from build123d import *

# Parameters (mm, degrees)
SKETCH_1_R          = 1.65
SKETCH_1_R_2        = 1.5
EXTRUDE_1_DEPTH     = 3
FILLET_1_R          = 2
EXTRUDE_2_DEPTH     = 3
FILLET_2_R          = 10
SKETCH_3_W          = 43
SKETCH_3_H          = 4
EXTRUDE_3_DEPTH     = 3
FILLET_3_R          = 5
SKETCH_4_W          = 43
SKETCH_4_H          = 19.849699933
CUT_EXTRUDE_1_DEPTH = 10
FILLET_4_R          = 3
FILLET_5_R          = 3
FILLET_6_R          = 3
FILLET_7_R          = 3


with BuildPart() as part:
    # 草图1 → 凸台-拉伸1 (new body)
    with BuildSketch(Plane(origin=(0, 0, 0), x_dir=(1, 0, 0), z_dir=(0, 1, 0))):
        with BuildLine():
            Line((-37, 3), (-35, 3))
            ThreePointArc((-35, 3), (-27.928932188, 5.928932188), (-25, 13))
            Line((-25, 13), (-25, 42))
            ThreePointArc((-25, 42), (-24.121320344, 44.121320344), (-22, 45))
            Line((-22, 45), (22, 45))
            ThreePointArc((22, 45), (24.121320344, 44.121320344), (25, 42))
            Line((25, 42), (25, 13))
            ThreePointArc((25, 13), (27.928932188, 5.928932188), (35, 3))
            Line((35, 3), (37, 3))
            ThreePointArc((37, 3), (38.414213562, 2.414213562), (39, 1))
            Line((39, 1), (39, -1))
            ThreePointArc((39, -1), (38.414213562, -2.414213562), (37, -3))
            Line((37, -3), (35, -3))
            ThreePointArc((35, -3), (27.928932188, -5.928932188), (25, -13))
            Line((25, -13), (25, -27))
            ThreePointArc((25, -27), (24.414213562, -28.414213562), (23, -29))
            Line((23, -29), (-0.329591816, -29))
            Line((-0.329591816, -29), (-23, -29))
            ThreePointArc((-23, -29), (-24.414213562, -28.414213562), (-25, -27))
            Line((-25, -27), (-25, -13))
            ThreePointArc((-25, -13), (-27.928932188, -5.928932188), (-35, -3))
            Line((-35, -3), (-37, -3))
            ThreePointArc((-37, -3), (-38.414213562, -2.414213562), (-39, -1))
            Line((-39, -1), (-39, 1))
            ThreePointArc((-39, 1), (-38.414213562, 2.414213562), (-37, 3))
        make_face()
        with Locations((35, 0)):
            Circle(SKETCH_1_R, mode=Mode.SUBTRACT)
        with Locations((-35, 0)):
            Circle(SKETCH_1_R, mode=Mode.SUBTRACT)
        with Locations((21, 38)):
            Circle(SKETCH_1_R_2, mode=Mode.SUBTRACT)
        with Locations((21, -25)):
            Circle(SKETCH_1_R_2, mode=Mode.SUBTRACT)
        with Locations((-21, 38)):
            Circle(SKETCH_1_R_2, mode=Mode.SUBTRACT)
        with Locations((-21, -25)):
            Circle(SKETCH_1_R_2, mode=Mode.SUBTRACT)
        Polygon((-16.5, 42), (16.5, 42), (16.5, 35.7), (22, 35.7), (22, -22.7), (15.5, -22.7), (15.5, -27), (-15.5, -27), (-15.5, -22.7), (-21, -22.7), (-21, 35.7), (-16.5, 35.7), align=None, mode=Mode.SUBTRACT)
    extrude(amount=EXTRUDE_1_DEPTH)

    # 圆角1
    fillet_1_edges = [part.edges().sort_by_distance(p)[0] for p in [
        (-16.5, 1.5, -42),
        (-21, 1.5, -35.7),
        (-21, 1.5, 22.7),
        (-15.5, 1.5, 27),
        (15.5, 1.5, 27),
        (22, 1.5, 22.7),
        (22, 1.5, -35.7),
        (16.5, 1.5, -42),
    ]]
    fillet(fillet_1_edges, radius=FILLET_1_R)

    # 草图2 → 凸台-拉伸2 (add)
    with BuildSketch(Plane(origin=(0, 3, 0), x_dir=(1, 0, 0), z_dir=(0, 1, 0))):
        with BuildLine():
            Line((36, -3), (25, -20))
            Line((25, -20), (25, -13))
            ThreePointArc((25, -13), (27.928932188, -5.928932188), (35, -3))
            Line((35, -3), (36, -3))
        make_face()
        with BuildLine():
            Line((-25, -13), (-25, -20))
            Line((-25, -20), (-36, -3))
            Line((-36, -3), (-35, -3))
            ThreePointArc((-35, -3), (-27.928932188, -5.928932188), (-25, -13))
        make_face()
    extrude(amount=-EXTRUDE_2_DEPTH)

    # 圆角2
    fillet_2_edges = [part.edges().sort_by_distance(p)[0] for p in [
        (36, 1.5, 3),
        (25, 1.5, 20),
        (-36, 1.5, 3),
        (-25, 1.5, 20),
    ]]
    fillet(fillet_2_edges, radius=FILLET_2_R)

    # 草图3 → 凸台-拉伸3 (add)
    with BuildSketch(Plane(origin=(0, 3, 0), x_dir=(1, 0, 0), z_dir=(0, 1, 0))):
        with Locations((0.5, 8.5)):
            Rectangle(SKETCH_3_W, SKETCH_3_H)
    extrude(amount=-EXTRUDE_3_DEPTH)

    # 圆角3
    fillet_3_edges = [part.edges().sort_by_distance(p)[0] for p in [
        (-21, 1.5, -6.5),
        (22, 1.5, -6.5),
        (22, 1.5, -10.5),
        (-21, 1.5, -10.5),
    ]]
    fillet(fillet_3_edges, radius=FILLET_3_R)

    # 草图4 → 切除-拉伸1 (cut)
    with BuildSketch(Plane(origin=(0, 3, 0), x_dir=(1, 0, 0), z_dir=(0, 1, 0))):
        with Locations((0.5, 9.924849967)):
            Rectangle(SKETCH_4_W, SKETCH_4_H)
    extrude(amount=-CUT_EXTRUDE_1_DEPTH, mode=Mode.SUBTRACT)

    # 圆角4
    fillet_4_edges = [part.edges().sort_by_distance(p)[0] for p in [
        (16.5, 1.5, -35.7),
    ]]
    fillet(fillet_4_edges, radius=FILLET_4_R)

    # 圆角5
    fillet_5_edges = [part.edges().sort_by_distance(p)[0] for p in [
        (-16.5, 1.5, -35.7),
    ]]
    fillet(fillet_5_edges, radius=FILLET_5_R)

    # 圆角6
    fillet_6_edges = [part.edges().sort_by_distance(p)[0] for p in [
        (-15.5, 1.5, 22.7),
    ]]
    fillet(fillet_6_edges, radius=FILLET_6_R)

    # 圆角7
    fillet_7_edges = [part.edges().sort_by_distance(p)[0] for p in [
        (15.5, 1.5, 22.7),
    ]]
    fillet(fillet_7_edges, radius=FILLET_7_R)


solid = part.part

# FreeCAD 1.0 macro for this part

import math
import FreeCAD as App
import Part
import Sketcher


def edges_at(feature, points):
    """Names of the edges that pass closest to the given points."""
    edges = feature.Shape.Edges
    near = lambda p: min(range(len(edges)), key=lambda i: edges[i].distToShape(Part.Vertex(*p))[0])
    return sorted({f"Edge{near(p) + 1}" for p in points})


def add_polygon(sketch, points):
    """Adds a closed chain of lines whose ends are joined by coincident constraints."""
    first, n = sketch.GeometryCount, len(points)
    for a, b in zip(points, points[1:] + points[:1]):
        sketch.addGeometry(Part.LineSegment(App.Vector(*a, 0), App.Vector(*b, 0)), False)
    for i in range(n):
        sketch.addConstraint(Sketcher.Constraint("Coincident", first + i, 2, first + (i + 1) % n, 1))

doc = App.newDocument("Part")
body = doc.addObject("PartDesign::Body", "Body")

# Sketch on XZ plane
sketch1 = body.newObject("Sketcher::SketchObject", "Sketch")
sketch1.AttachmentSupport = (doc.getObject("XZ_Plane"), [""])
sketch1.MapMode = "FlatFace"
sketch1.addGeometry(Part.LineSegment(App.Vector(-35, -3, 0), App.Vector(-37, -3, 0)), False)  # 0
sketch1.addGeometry(Part.ArcOfCircle(Part.Circle(App.Vector(-37, -1, 0), App.Vector(0, 0, 1), 2), math.radians(-180), math.radians(-90)), False)  # 1
sketch1.addGeometry(Part.LineSegment(App.Vector(-39, -1, 0), App.Vector(-39, 1, 0)), False)  # 2
sketch1.addGeometry(Part.ArcOfCircle(Part.Circle(App.Vector(-37, 1, 0), App.Vector(0, 0, 1), 2), math.radians(90), math.radians(180)), False)  # 3
sketch1.addGeometry(Part.LineSegment(App.Vector(-37, 3, 0), App.Vector(-35, 3, 0)), False)  # 4
sketch1.addGeometry(Part.ArcOfCircle(Part.Circle(App.Vector(-35, 13, 0), App.Vector(0, 0, 1), 10), math.radians(-90), math.radians(0)), False)  # 5
sketch1.addGeometry(Part.LineSegment(App.Vector(-25, 13, 0), App.Vector(-25, 27, 0)), False)  # 6
sketch1.addGeometry(Part.ArcOfCircle(Part.Circle(App.Vector(-23, 27, 0), App.Vector(0, 0, 1), 2), math.radians(90), math.radians(180)), False)  # 7
sketch1.addGeometry(Part.LineSegment(App.Vector(-23, 29, 0), App.Vector(23, 29, 0)), False)  # 8
sketch1.addGeometry(Part.ArcOfCircle(Part.Circle(App.Vector(23, 27, 0), App.Vector(0, 0, 1), 2), math.radians(0), math.radians(90)), False)  # 9
sketch1.addGeometry(Part.LineSegment(App.Vector(25, 27, 0), App.Vector(25, 13, 0)), False)  # 10
sketch1.addGeometry(Part.ArcOfCircle(Part.Circle(App.Vector(35, 13, 0), App.Vector(0, 0, 1), 10), math.radians(180), math.radians(270)), False)  # 11
sketch1.addGeometry(Part.LineSegment(App.Vector(35, 3, 0), App.Vector(37, 3, 0)), False)  # 12
sketch1.addGeometry(Part.ArcOfCircle(Part.Circle(App.Vector(37, 1, 0), App.Vector(0, 0, 1), 2), math.radians(0), math.radians(90)), False)  # 13
sketch1.addGeometry(Part.LineSegment(App.Vector(39, 1, 0), App.Vector(39, -1, 0)), False)  # 14
sketch1.addGeometry(Part.ArcOfCircle(Part.Circle(App.Vector(37, -1, 0), App.Vector(0, 0, 1), 2), math.radians(-90), math.radians(0)), False)  # 15
sketch1.addGeometry(Part.LineSegment(App.Vector(37, -3, 0), App.Vector(35, -3, 0)), False)  # 16
sketch1.addGeometry(Part.ArcOfCircle(Part.Circle(App.Vector(35, -13, 0), App.Vector(0, 0, 1), 10), math.radians(90), math.radians(180)), False)  # 17
sketch1.addGeometry(Part.LineSegment(App.Vector(25, -13, 0), App.Vector(25, -42, 0)), False)  # 18
sketch1.addGeometry(Part.ArcOfCircle(Part.Circle(App.Vector(22, -42, 0), App.Vector(0, 0, 1), 3), math.radians(-90), math.radians(0)), False)  # 19
sketch1.addGeometry(Part.LineSegment(App.Vector(22, -45, 0), App.Vector(-22, -45, 0)), False)  # 20
sketch1.addGeometry(Part.ArcOfCircle(Part.Circle(App.Vector(-22, -42, 0), App.Vector(0, 0, 1), 3), math.radians(180), math.radians(270)), False)  # 21
sketch1.addGeometry(Part.LineSegment(App.Vector(-25, -42, 0), App.Vector(-25, -13, 0)), False)  # 22
sketch1.addGeometry(Part.ArcOfCircle(Part.Circle(App.Vector(-35, -13, 0), App.Vector(0, 0, 1), 10), math.radians(0), math.radians(90)), False)  # 23
sketch1.addGeometry(Part.Circle(App.Vector(21, 25, 0), App.Vector(0, 0, 1), 1.5), False)  # 24
sketch1.addGeometry(Part.Circle(App.Vector(35, 0, 0), App.Vector(0, 0, 1), 1.6), False)  # 25
sketch1.addGeometry(Part.Circle(App.Vector(-21, 25, 0), App.Vector(0, 0, 1), 1.5), False)  # 26
sketch1.addGeometry(Part.Circle(App.Vector(-35, 0, 0), App.Vector(0, 0, 1), 1.6), False)  # 27
add_polygon(sketch1, [(-16.5, -42), (16.5, -42), (16.5, -35.7), (22, -35.7), (22, 22.7), (15.5, 22.7), (15.5, 27), (-15.5, 27), (-15.5, 22.7), (-21, 22.7), (-21, -35.7), (-16.5, -35.7)])  # lines 28-39
sketch1.addGeometry(Part.Circle(App.Vector(21, -38, 0), App.Vector(0, 0, 1), 1.5), False)  # 40
sketch1.addGeometry(Part.Circle(App.Vector(-21, -38, 0), App.Vector(0, 0, 1), 1.5), False)  # 41
sketch1.addConstraint(Sketcher.Constraint("Tangent", 0, 2, 1, 2))
sketch1.addConstraint(Sketcher.Constraint("Tangent", 1, 1, 2, 1))
sketch1.addConstraint(Sketcher.Constraint("Tangent", 2, 2, 3, 2))
sketch1.addConstraint(Sketcher.Constraint("Tangent", 3, 1, 4, 1))
sketch1.addConstraint(Sketcher.Constraint("Tangent", 4, 2, 5, 1))
sketch1.addConstraint(Sketcher.Constraint("Tangent", 5, 2, 6, 1))
sketch1.addConstraint(Sketcher.Constraint("Tangent", 6, 2, 7, 2))
sketch1.addConstraint(Sketcher.Constraint("Tangent", 7, 1, 8, 1))
sketch1.addConstraint(Sketcher.Constraint("Tangent", 8, 2, 9, 2))
sketch1.addConstraint(Sketcher.Constraint("Tangent", 9, 1, 10, 1))
sketch1.addConstraint(Sketcher.Constraint("Tangent", 10, 2, 11, 1))
sketch1.addConstraint(Sketcher.Constraint("Tangent", 11, 2, 12, 1))
sketch1.addConstraint(Sketcher.Constraint("Tangent", 12, 2, 13, 2))
sketch1.addConstraint(Sketcher.Constraint("Tangent", 13, 1, 14, 1))
sketch1.addConstraint(Sketcher.Constraint("Tangent", 14, 2, 15, 2))
sketch1.addConstraint(Sketcher.Constraint("Tangent", 15, 1, 16, 1))
sketch1.addConstraint(Sketcher.Constraint("Tangent", 16, 2, 17, 1))
sketch1.addConstraint(Sketcher.Constraint("Tangent", 17, 2, 18, 1))
sketch1.addConstraint(Sketcher.Constraint("Tangent", 18, 2, 19, 2))
sketch1.addConstraint(Sketcher.Constraint("Tangent", 19, 1, 20, 1))
sketch1.addConstraint(Sketcher.Constraint("Tangent", 20, 2, 21, 2))
sketch1.addConstraint(Sketcher.Constraint("Tangent", 21, 1, 22, 1))
sketch1.addConstraint(Sketcher.Constraint("Tangent", 22, 2, 23, 1))
sketch1.addConstraint(Sketcher.Constraint("Tangent", 23, 2, 0, 1))
sketch1.addConstraint(Sketcher.Constraint("Horizontal", 0))
sketch1.addConstraint(Sketcher.Constraint("Vertical", 2))
sketch1.addConstraint(Sketcher.Constraint("Horizontal", 4))
sketch1.addConstraint(Sketcher.Constraint("Vertical", 6))
sketch1.addConstraint(Sketcher.Constraint("Horizontal", 8))
sketch1.addConstraint(Sketcher.Constraint("Vertical", 10))
sketch1.addConstraint(Sketcher.Constraint("Horizontal", 12))
sketch1.addConstraint(Sketcher.Constraint("Vertical", 14))
sketch1.addConstraint(Sketcher.Constraint("Horizontal", 16))
sketch1.addConstraint(Sketcher.Constraint("Vertical", 18))
sketch1.addConstraint(Sketcher.Constraint("Horizontal", 20))
sketch1.addConstraint(Sketcher.Constraint("Vertical", 22))
sketch1.addConstraint(Sketcher.Constraint("Horizontal", 28))
sketch1.addConstraint(Sketcher.Constraint("Vertical", 29))
sketch1.addConstraint(Sketcher.Constraint("Horizontal", 30))
sketch1.addConstraint(Sketcher.Constraint("Vertical", 31))
sketch1.addConstraint(Sketcher.Constraint("Horizontal", 32))
sketch1.addConstraint(Sketcher.Constraint("Vertical", 33))
sketch1.addConstraint(Sketcher.Constraint("Horizontal", 34))
sketch1.addConstraint(Sketcher.Constraint("Vertical", 35))
sketch1.addConstraint(Sketcher.Constraint("Horizontal", 36))
sketch1.addConstraint(Sketcher.Constraint("Vertical", 37))
sketch1.addConstraint(Sketcher.Constraint("Horizontal", 38))
sketch1.addConstraint(Sketcher.Constraint("Vertical", 39))
sketch1.addConstraint(Sketcher.Constraint("Equal", 1, 3))
sketch1.addConstraint(Sketcher.Constraint("Equal", 3, 7))
sketch1.addConstraint(Sketcher.Constraint("Equal", 7, 9))
sketch1.addConstraint(Sketcher.Constraint("Equal", 5, 11))
sketch1.addConstraint(Sketcher.Constraint("Equal", 9, 13))
sketch1.addConstraint(Sketcher.Constraint("Equal", 13, 15))
sketch1.addConstraint(Sketcher.Constraint("Equal", 11, 17))
sketch1.addConstraint(Sketcher.Constraint("Equal", 19, 21))
sketch1.addConstraint(Sketcher.Constraint("Equal", 17, 23))
sketch1.addConstraint(Sketcher.Constraint("Equal", 24, 26))
sketch1.addConstraint(Sketcher.Constraint("Equal", 25, 27))
sketch1.addConstraint(Sketcher.Constraint("Equal", 26, 40))
sketch1.addConstraint(Sketcher.Constraint("Equal", 40, 41))
sketch1.addConstraint(Sketcher.Constraint("Symmetric", 1, 3, 13, 3, -1, 1))
sketch1.addConstraint(Sketcher.Constraint("Symmetric", 5, 3, 17, 3, -1, 1))
sketch1.addConstraint(Sketcher.Constraint("Symmetric", 25, 3, 27, 3, -1, 1))
sketch1.addConstraint(Sketcher.Constraint("Symmetric", 5, 3, 11, 3, -2))
sketch1.addConstraint(Sketcher.Constraint("Symmetric", 24, 3, 26, 3, -2))
sketch1.addConstraint(Sketcher.Constraint("Symmetric", 40, 3, 41, 3, -2))
sketch1.addConstraint(Sketcher.Constraint("Symmetric", 32, 2, 35, 2, -2))
sketch1.addConstraint(Sketcher.Constraint("Symmetric", 29, 2, 38, 2, -2))
sketch1.addConstraint(Sketcher.Constraint("PointOnObject", 25, 3, -1))
sketch1.addConstraint(Sketcher.Constraint("Horizontal", 21, 1, 28, 2))
sketch1.addConstraint(Sketcher.Constraint("Horizontal", 9, 1, 33, 2))
sketch1.addConstraint(Sketcher.Constraint("Vertical", 5, 3, 23, 3))
sketch1.addConstraint(Sketcher.Constraint("Vertical", 17, 3, 25, 3))
sketch1.addConstraint(Sketcher.Constraint("Vertical", 24, 3, 40, 3))
sketch1.addConstraint(Sketcher.Constraint("Vertical", 19, 1, 30, 2))
sketch1.addConstraint(Sketcher.Constraint("Vertical", 41, 3, 36, 2))
sketch1.addConstraint(Sketcher.Constraint("Equal", 30, 36))
sketch1.addConstraint(Sketcher.Constraint("Equal", 16, 2))
sketch1.addConstraint(Sketcher.Constraint("Diameter", 24, 3.0))
sketch1.addConstraint(Sketcher.Constraint("Radius", 1, 2.0))
sketch1.addConstraint(Sketcher.Constraint("Radius", 5, 10.0))
sketch1.addConstraint(Sketcher.Constraint("Radius", 19, 3.0))
sketch1.addConstraint(Sketcher.Constraint("Diameter", 25, 3.3))
sketch1.addConstraint(Sketcher.Constraint("DistanceX", 0, 2, 0, 1, 2.0))
sketch1.addConstraint(Sketcher.Constraint("DistanceX", 8, 1, 8, 2, 46.0))
sketch1.addConstraint(Sketcher.Constraint("DistanceX", 28, 1, 28, 2, 33.0))
sketch1.addConstraint(Sketcher.Constraint("DistanceX", 34, 2, 34, 1, 31.0))
sketch1.addConstraint(Sketcher.Constraint("DistanceY", 6, 1, 6, 2, 14.0))
sketch1.addConstraint(Sketcher.Constraint("DistanceY", 18, 2, 18, 1, 29.0))
sketch1.addConstraint(Sketcher.Constraint("DistanceY", 29, 1, 29, 2, 6.3))
sketch1.addConstraint(Sketcher.Constraint("DistanceY", 31, 1, 31, 2, 58.4))
sketch1.addConstraint(Sketcher.Constraint("DistanceY", -1, 1, 24, 3, 25.0))
sketch1.addConstraint(Sketcher.Constraint("DistanceY", 40, 3, -1, 1, 38.0))
pad1 = body.newObject("PartDesign::Pad", "Pad")
pad1.Profile = sketch1
pad1.Length = 3
pad1.Reversed = True
doc.recompute()

fillet = body.newObject("PartDesign::Fillet", "Fillet")
fillet.Base = (pad1, edges_at(pad1, [
    (-16.5, 1.5, -42),
    (-21, 1.5, -35.7),
    (-21, 1.5, 22.7),
    (-15.5, 1.5, 27),
    (15.5, 1.5, 27),
    (22, 1.5, 22.7),
    (22, 1.5, -35.7),
    (16.5, 1.5, -42),
]))
fillet.Radius = 2

# Sketch on XZ plane
sketch2 = body.newObject("Sketcher::SketchObject", "Sketch001")
sketch2.AttachmentSupport = (doc.getObject("XZ_Plane"), [""])
sketch2.MapMode = "FlatFace"
sketch2.AttachmentOffset = App.Placement(App.Vector(0, 0, -3), App.Rotation())
sketch2.addGeometry(Part.LineSegment(App.Vector(25, 20, 0), App.Vector(36, 3, 0)), False)
sketch2.addGeometry(Part.LineSegment(App.Vector(36, 3, 0), App.Vector(35, 3, 0)), False)
sketch2.addGeometry(Part.ArcOfCircle(Part.Circle(App.Vector(35, 13, 0), App.Vector(0, 0, 1), 10), math.radians(180), math.radians(270)), False)
sketch2.addGeometry(Part.LineSegment(App.Vector(25, 13, 0), App.Vector(25, 20, 0)), False)
sketch2.addGeometry(Part.LineSegment(App.Vector(-25, 20, 0), App.Vector(-25, 13, 0)), False)
sketch2.addGeometry(Part.ArcOfCircle(Part.Circle(App.Vector(-35, 13, 0), App.Vector(0, 0, 1), 10), math.radians(-90), math.radians(0)), False)
sketch2.addGeometry(Part.LineSegment(App.Vector(-35, 3, 0), App.Vector(-36, 3, 0)), False)
sketch2.addGeometry(Part.LineSegment(App.Vector(-36, 3, 0), App.Vector(-25, 20, 0)), False)
sketch2.addConstraint(Sketcher.Constraint("Coincident", 0, 2, 1, 1))
sketch2.addConstraint(Sketcher.Constraint("Tangent", 1, 2, 2, 2))
sketch2.addConstraint(Sketcher.Constraint("Tangent", 2, 1, 3, 1))
sketch2.addConstraint(Sketcher.Constraint("Coincident", 3, 2, 0, 1))
sketch2.addConstraint(Sketcher.Constraint("Tangent", 4, 2, 5, 2))
sketch2.addConstraint(Sketcher.Constraint("Tangent", 5, 1, 6, 1))
sketch2.addConstraint(Sketcher.Constraint("Coincident", 6, 2, 7, 1))
sketch2.addConstraint(Sketcher.Constraint("Coincident", 7, 2, 4, 1))
sketch2.addConstraint(Sketcher.Constraint("Horizontal", 1))
sketch2.addConstraint(Sketcher.Constraint("Vertical", 3))
sketch2.addConstraint(Sketcher.Constraint("Vertical", 4))
sketch2.addConstraint(Sketcher.Constraint("Horizontal", 6))
sketch2.addConstraint(Sketcher.Constraint("Equal", 2, 5))
sketch2.addConstraint(Sketcher.Constraint("Symmetric", 2, 3, 5, 3, -2))
sketch2.addConstraint(Sketcher.Constraint("Horizontal", 3, 2, 7, 2))
sketch2.addConstraint(Sketcher.Constraint("Equal", 1, 6))
sketch2.addConstraint(Sketcher.Constraint("Radius", 2, 10.0))
sketch2.addConstraint(Sketcher.Constraint("DistanceX", 1, 2, 1, 1, 1.0))
sketch2.addConstraint(Sketcher.Constraint("DistanceY", 3, 1, 3, 2, 7.0))
sketch2.addConstraint(Sketcher.Constraint("DistanceX", -1, 1, 2, 3, 35.0))
sketch2.addConstraint(Sketcher.Constraint("DistanceY", -1, 1, 2, 3, 13.0))
pad2 = body.newObject("PartDesign::Pad", "Pad001")
pad2.Profile = sketch2
pad2.Length = 3
doc.recompute()

fillet2 = body.newObject("PartDesign::Fillet", "Fillet001")
fillet2.Base = (pad2, edges_at(pad2, [
    (36, 1.5, 3),
    (25, 1.5, 20),
    (-36, 1.5, 3),
    (-25, 1.5, 20),
]))
fillet2.Radius = 10

# Sketch on XZ plane
sketch3 = body.newObject("Sketcher::SketchObject", "Sketch002")
sketch3.AttachmentSupport = (doc.getObject("XZ_Plane"), [""])
sketch3.MapMode = "FlatFace"
sketch3.AttachmentOffset = App.Placement(App.Vector(0, 0, -3), App.Rotation())
add_polygon(sketch3, [(-21, -10.5), (-21, -6.5), (22, -6.5), (22, -10.5)])  # lines 0-3
sketch3.addConstraint(Sketcher.Constraint("Vertical", 0))
sketch3.addConstraint(Sketcher.Constraint("Horizontal", 1))
sketch3.addConstraint(Sketcher.Constraint("Vertical", 2))
sketch3.addConstraint(Sketcher.Constraint("Horizontal", 3))
sketch3.addConstraint(Sketcher.Constraint("DistanceX", 1, 1, 1, 2, 43.0))
sketch3.addConstraint(Sketcher.Constraint("DistanceY", 0, 1, 0, 2, 4.0))
sketch3.addConstraint(Sketcher.Constraint("DistanceX", 0, 2, -1, 1, 21.0))
sketch3.addConstraint(Sketcher.Constraint("DistanceY", 0, 2, -1, 1, 6.5))
pad3 = body.newObject("PartDesign::Pad", "Pad002")
pad3.Profile = sketch3
pad3.Length = 3
doc.recompute()

fillet3 = body.newObject("PartDesign::Fillet", "Fillet002")
fillet3.Base = (pad3, edges_at(pad3, [
    (-21, 1.5, -6.5),
    (22, 1.5, -6.5),
    (22, 1.5, -10.5),
    (-21, 1.5, -10.5),
]))
fillet3.Radius = 5

# Sketch on XZ plane
sketch4 = body.newObject("Sketcher::SketchObject", "Sketch003")
sketch4.AttachmentSupport = (doc.getObject("XZ_Plane"), [""])
sketch4.MapMode = "FlatFace"
sketch4.AttachmentOffset = App.Placement(App.Vector(0, 0, -3), App.Rotation())
add_polygon(sketch4, [(-21, -20), (-21, 0), (22, 0), (22, -20)])  # lines 0-3
sketch4.addConstraint(Sketcher.Constraint("Vertical", 0))
sketch4.addConstraint(Sketcher.Constraint("Horizontal", 1))
sketch4.addConstraint(Sketcher.Constraint("Vertical", 2))
sketch4.addConstraint(Sketcher.Constraint("Horizontal", 3))
sketch4.addConstraint(Sketcher.Constraint("PointOnObject", 0, 2, -1))
sketch4.addConstraint(Sketcher.Constraint("DistanceX", 1, 1, 1, 2, 43.0))
sketch4.addConstraint(Sketcher.Constraint("DistanceX", 0, 2, -1, 1, 21.0))
sketch4.addConstraint(Sketcher.Constraint("DistanceY", 0, 1, 0, 2, 19.8497))
pocket1 = body.newObject("PartDesign::Pocket", "Pocket")
pocket1.Profile = sketch4
pocket1.Length = 10
pocket1.Reversed = True
doc.recompute()

fillet4 = body.newObject("PartDesign::Fillet", "Fillet003")
fillet4.Base = (pocket1, edges_at(pocket1, [(16.5, 1.5, -35.7)]))
fillet4.Radius = 3
doc.recompute()

fillet5 = body.newObject("PartDesign::Fillet", "Fillet004")
fillet5.Base = (fillet4, edges_at(fillet4, [(-16.5, 1.5, -35.7)]))
fillet5.Radius = 3
doc.recompute()

fillet6 = body.newObject("PartDesign::Fillet", "Fillet005")
fillet6.Base = (fillet5, edges_at(fillet5, [(-15.5, 1.5, 22.7)]))
fillet6.Radius = 3
doc.recompute()

fillet7 = body.newObject("PartDesign::Fillet", "Fillet006")
fillet7.Base = (fillet6, edges_at(fillet6, [(15.5, 1.5, 22.7)]))
fillet7.Radius = 3

doc.recompute()
